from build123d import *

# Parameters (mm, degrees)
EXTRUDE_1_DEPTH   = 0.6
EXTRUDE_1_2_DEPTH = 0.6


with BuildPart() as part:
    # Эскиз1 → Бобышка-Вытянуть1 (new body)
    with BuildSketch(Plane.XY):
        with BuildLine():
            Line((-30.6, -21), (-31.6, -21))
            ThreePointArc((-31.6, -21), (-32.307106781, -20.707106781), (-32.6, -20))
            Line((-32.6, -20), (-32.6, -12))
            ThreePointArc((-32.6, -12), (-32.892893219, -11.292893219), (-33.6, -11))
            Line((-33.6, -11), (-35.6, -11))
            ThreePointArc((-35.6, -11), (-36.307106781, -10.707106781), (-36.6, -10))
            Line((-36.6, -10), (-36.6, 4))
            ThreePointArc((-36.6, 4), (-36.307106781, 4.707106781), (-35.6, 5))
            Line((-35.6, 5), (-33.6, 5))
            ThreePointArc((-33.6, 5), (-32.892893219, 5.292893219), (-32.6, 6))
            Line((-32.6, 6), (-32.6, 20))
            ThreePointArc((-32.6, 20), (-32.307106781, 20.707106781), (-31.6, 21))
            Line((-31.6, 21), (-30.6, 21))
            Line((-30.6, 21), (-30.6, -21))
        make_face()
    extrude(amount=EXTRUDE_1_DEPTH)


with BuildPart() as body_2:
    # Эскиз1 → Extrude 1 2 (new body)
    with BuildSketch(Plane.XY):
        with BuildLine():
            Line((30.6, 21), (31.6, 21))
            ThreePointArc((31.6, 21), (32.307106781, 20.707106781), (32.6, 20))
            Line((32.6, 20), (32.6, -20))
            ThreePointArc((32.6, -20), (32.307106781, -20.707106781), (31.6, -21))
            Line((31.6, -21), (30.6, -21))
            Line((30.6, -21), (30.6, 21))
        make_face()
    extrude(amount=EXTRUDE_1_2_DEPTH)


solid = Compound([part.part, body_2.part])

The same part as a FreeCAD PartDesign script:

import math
import FreeCAD as App
import Part
import Sketcher
from FreeCAD import Vector

doc = App.newDocument("Part")
body = doc.addObject("PartDesign::Body", "Body")

# Sketch on XY plane
sketch1 = body.newObject("Sketcher::SketchObject", "Sketch")
sketch1.AttachmentSupport = (doc.getObject("XY_Plane"), [""])
sketch1.MapMode = "FlatFace"
sketch1.addGeometry([
    Part.LineSegment(Vector(-31.6, -21, 0), Vector(-30.6, -21, 0)),  # 0
    Part.LineSegment(Vector(-30.6, -21, 0), Vector(-30.6, 21, 0)),  # 1
    Part.LineSegment(Vector(-30.6, 21, 0), Vector(-31.6, 21, 0)),  # 2
    Part.ArcOfCircle(Part.Circle(Vector(-31.6, 20, 0), Vector(0, 0, 1), 1), math.radians(90), math.radians(180)),  # 3
    Part.LineSegment(Vector(-32.6, 20, 0), Vector(-32.6, 6, 0)),  # 4
    Part.ArcOfCircle(Part.Circle(Vector(-33.6, 6, 0), Vector(0, 0, 1), 1), math.radians(-90), math.radians(0)),  # 5
    Part.LineSegment(Vector(-33.6, 5, 0), Vector(-35.6, 5, 0)),  # 6
    Part.ArcOfCircle(Part.Circle(Vector(-35.6, 4, 0), Vector(0, 0, 1), 1), math.radians(90), math.radians(180)),  # 7
    Part.LineSegment(Vector(-36.6, 4, 0), Vector(-36.6, -10, 0)),  # 8
    Part.ArcOfCircle(Part.Circle(Vector(-35.6, -10, 0), Vector(0, 0, 1), 1), math.radians(-180), math.radians(-90)),  # 9
    Part.LineSegment(Vector(-35.6, -11, 0), Vector(-33.6, -11, 0)),  # 10
    Part.ArcOfCircle(Part.Circle(Vector(-33.6, -12, 0), Vector(0, 0, 1), 1), math.radians(0), math.radians(90)),  # 11
    Part.LineSegment(Vector(-32.6, -12, 0), Vector(-32.6, -20, 0)),  # 12
    Part.ArcOfCircle(Part.Circle(Vector(-31.6, -20, 0), Vector(0, 0, 1), 1), math.radians(-180), math.radians(-90)),  # 13
], False)
sketch1.addConstraint([
    Sketcher.Constraint("Coincident", 0, 2, 1, 1),
    Sketcher.Constraint("Coincident", 1, 2, 2, 1),
    Sketcher.Constraint("Tangent", 2, 2, 3, 1),
    Sketcher.Constraint("Tangent", 3, 2, 4, 1),
    Sketcher.Constraint("Tangent", 4, 2, 5, 2),
    Sketcher.Constraint("Tangent", 5, 1, 6, 1),
    Sketcher.Constraint("Tangent", 6, 2, 7, 1),
    Sketcher.Constraint("Tangent", 7, 2, 8, 1),
    Sketcher.Constraint("Tangent", 8, 2, 9, 1),
    Sketcher.Constraint("Tangent", 9, 2, 10, 1),
    Sketcher.Constraint("Tangent", 10, 2, 11, 2),
    Sketcher.Constraint("Tangent", 11, 1, 12, 1),
    Sketcher.Constraint("Tangent", 12, 2, 13, 1),
    Sketcher.Constraint("Tangent", 13, 2, 0, 1),
    Sketcher.Constraint("Horizontal", 0),
    Sketcher.Constraint("Vertical", 1),
    Sketcher.Constraint("Horizontal", 2),
    Sketcher.Constraint("Vertical", 4),
    Sketcher.Constraint("Horizontal", 6),
    Sketcher.Constraint("Vertical", 8),
    Sketcher.Constraint("Horizontal", 10),
    Sketcher.Constraint("Vertical", 12),
    Sketcher.Constraint("Equal", 3, 5),
    Sketcher.Constraint("Equal", 5, 7),
    Sketcher.Constraint("Equal", 7, 9),
    Sketcher.Constraint("Equal", 9, 11),
    Sketcher.Constraint("Equal", 11, 13),
    Sketcher.Constraint("Symmetric", 3, 3, 13, 3, -1),
    Sketcher.Constraint("Equal", 4, 8),
    Sketcher.Constraint("Radius", 3, 1.0),
    Sketcher.Constraint("DistanceX", 0, 1, 0, 2, 1.0),
    Sketcher.Constraint("DistanceX", 6, 2, 6, 1, 2.0),
    Sketcher.Constraint("DistanceY", 1, 1, 1, 2, 42.0),
    Sketcher.Constraint("DistanceY", 4, 2, 4, 1, 14.0),
    Sketcher.Constraint("DistanceX", 3, 3, -1, 1, 31.6),
])
pad1 = body.newObject("PartDesign::Pad", "Pad")
pad1.Profile = sketch1
pad1.Length = 0.6
body2 = doc.addObject("PartDesign::Body", "Body001")

# Sketch on XY plane
sketch2 = body2.newObject("Sketcher::SketchObject", "Sketch001")
sketch2.AttachmentSupport = (doc.getObject("XY_Plane001"), [""])
sketch2.MapMode = "FlatFace"
sketch2.addGeometry([
    Part.LineSegment(Vector(31.6, 21, 0), Vector(30.6, 21, 0)),  # 0
    Part.LineSegment(Vector(30.6, 21, 0), Vector(30.6, -21, 0)),  # 1
    Part.LineSegment(Vector(30.6, -21, 0), Vector(31.6, -21, 0)),  # 2
    Part.ArcOfCircle(Part.Circle(Vector(31.6, -20, 0), Vector(0, 0, 1), 1), math.radians(-90), math.radians(0)),  # 3
    Part.LineSegment(Vector(32.6, -20, 0), Vector(32.6, 20, 0)),  # 4
    Part.ArcOfCircle(Part.Circle(Vector(31.6, 20, 0), Vector(0, 0, 1), 1), math.radians(0), math.radians(90)),  # 5
], False)
sketch2.addConstraint([
    Sketcher.Constraint("Coincident", 0, 2, 1, 1),
    Sketcher.Constraint("Coincident", 1, 2, 2, 1),
    Sketcher.Constraint("Tangent", 2, 2, 3, 1),
    Sketcher.Constraint("Tangent", 3, 2, 4, 1),
    Sketcher.Constraint("Tangent", 4, 2, 5, 1),
    Sketcher.Constraint("Tangent", 5, 2, 0, 1),
    Sketcher.Constraint("Horizontal", 0),
    Sketcher.Constraint("Vertical", 1),
    Sketcher.Constraint("Horizontal", 2),
    Sketcher.Constraint("Vertical", 4),
    Sketcher.Constraint("Equal", 3, 5),
    Sketcher.Constraint("Radius", 3, 1.0),
    Sketcher.Constraint("DistanceX", 0, 2, 0, 1, 1.0),
    Sketcher.Constraint("DistanceY", 1, 2, 1, 1, 42.0),
    Sketcher.Constraint("DistanceY", 3, 3, -1, 1, 20.0),
    Sketcher.Constraint("DistanceX", -1, 1, 3, 3, 31.6),
])
pad2 = body2.newObject("PartDesign::Pad", "Pad001")
pad2.Profile = sketch2
pad2.Length = 0.6

doc.recompute()
